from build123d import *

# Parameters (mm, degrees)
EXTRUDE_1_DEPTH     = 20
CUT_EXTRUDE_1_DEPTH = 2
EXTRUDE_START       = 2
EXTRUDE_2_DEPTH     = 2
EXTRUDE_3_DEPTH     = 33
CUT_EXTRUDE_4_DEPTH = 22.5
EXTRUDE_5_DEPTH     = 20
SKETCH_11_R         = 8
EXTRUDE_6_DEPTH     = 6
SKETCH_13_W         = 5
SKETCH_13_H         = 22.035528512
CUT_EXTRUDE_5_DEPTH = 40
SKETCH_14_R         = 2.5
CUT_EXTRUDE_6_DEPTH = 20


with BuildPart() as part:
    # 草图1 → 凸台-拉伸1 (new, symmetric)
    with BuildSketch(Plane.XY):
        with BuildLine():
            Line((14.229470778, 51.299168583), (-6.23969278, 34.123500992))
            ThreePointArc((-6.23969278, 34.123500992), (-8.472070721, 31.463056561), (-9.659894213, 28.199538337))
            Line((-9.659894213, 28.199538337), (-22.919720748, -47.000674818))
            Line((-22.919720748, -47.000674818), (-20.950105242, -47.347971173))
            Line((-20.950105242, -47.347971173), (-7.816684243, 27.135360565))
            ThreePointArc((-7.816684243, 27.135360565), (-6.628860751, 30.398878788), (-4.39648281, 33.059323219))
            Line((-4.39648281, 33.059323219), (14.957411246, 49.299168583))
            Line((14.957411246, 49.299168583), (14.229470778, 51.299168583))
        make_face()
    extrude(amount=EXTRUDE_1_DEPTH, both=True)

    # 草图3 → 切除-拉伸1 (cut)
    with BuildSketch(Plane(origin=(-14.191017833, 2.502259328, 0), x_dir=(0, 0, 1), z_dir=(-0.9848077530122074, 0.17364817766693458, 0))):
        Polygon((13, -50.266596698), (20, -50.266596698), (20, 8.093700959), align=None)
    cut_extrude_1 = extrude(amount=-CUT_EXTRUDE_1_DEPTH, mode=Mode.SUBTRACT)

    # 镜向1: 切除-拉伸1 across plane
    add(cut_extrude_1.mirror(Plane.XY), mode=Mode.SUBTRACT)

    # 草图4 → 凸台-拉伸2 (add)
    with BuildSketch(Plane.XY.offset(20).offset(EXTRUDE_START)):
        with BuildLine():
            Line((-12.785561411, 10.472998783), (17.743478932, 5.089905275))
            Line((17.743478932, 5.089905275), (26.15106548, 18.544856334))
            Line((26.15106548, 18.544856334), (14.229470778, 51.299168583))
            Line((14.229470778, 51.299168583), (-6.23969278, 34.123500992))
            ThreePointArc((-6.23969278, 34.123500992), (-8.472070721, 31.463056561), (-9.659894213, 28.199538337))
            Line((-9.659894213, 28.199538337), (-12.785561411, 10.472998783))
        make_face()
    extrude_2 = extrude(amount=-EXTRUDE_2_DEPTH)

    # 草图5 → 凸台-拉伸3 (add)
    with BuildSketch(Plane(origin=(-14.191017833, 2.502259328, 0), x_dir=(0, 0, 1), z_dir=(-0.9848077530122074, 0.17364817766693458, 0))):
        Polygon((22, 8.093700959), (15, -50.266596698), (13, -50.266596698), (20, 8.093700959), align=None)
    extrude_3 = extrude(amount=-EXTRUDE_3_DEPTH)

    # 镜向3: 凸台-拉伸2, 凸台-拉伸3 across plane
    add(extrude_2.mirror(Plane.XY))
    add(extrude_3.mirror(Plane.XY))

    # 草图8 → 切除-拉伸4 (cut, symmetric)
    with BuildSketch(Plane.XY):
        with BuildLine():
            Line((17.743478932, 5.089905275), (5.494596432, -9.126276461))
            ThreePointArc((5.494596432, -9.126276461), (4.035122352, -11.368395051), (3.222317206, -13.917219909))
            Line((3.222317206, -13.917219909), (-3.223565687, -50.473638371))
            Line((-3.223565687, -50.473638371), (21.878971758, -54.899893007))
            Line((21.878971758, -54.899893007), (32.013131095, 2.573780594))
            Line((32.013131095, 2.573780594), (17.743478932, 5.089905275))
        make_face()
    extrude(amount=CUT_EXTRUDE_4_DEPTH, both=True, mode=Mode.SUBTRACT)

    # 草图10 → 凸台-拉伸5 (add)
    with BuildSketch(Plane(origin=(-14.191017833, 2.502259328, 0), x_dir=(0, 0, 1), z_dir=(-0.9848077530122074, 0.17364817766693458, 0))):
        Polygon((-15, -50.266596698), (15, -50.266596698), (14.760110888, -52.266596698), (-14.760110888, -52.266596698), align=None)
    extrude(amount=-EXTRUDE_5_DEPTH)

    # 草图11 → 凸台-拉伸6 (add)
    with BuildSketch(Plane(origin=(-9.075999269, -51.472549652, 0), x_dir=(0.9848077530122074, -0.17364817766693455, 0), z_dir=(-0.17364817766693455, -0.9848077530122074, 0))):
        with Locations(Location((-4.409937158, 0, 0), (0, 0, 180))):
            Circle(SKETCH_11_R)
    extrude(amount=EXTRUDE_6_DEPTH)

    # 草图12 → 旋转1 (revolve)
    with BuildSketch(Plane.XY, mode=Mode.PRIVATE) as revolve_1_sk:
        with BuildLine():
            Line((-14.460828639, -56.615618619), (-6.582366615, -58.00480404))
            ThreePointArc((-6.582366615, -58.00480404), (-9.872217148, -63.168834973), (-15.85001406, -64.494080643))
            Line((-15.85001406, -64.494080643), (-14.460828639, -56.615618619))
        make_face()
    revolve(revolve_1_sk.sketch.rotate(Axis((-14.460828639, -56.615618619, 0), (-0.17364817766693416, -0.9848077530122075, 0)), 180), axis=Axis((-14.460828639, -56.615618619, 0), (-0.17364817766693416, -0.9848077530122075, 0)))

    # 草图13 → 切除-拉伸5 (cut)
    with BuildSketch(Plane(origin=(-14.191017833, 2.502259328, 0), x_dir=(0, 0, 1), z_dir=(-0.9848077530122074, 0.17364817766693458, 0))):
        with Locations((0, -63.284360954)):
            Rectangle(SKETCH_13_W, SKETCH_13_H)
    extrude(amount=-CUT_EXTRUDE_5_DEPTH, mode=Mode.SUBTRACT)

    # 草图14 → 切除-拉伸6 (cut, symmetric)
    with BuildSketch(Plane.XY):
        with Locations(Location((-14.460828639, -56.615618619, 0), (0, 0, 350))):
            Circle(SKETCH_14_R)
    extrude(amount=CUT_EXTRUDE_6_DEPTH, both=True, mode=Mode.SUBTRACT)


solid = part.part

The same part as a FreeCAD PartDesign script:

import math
import FreeCAD as App
import Part
import Sketcher
Q = App.Units.Quantity


def add_polygon(sketch, points):
    """Adds a closed chain of lines whose ends are joined by coincident constraints."""
    first, n = sketch.GeometryCount, len(points)
    for a, b in zip(points, points[1:] + points[:1]):
        sketch.addGeometry(Part.LineSegment(App.Vector(*a, 0), App.Vector(*b, 0)), False)
    for i in range(n):
        sketch.addConstraint(Sketcher.Constraint("Coincident", first + i, 2, first + (i + 1) % n, 1))

doc = App.newDocument("Part")
body = doc.addObject("PartDesign::Body", "Body")

# Sketch on XY plane
sketch1 = body.newObject("Sketcher::SketchObject", "Sketch")
sketch1.AttachmentSupport = (doc.getObject("XY_Plane"), [""])
sketch1.MapMode = "FlatFace"
sketch1.addGeometry([
    Part.LineSegment(App.Vector(14.2, 51.3, 0), App.Vector(-6.2, 34.1, 0)),  # 0
    Part.ArcOfCircle(Part.Circle(App.Vector(0.2, 26.5, 0), App.Vector(0, 0, 1), 10), math.radians(130), math.radians(170)),  # 1
    Part.LineSegment(App.Vector(-9.7, 28.2, 0), App.Vector(-22.9, -47, 0)),  # 2
    Part.LineSegment(App.Vector(-22.9, -47, 0), App.Vector(-21, -47.3, 0)),  # 3
    Part.LineSegment(App.Vector(-21, -47.3, 0), App.Vector(-7.8, 27.1, 0)),  # 4
    Part.ArcOfCircle(Part.Circle(App.Vector(2, 25.4, 0), App.Vector(0, 0, 1), 10), math.radians(130), math.radians(170)),  # 5
    Part.LineSegment(App.Vector(-4.4, 33.1, 0), App.Vector(15, 49.3, 0)),  # 6
    Part.LineSegment(App.Vector(15, 49.3, 0), App.Vector(14.2, 51.3, 0)),  # 7
], False)
sketch1.addConstraint([
    Sketcher.Constraint("Tangent", 0, 2, 1, 1),
    Sketcher.Constraint("Tangent", 1, 2, 2, 1),
    Sketcher.Constraint("Coincident", 2, 2, 3, 1),
    Sketcher.Constraint("Coincident", 3, 2, 4, 1),
    Sketcher.Constraint("Tangent", 4, 2, 5, 2),
    Sketcher.Constraint("Tangent", 5, 1, 6, 1),
    Sketcher.Constraint("Coincident", 6, 2, 7, 1),
    Sketcher.Constraint("Coincident", 7, 2, 0, 1),
    Sketcher.Constraint("Equal", 1, 5),
    Sketcher.Constraint("Perpendicular", 2, 3),
    Sketcher.Constraint("Perpendicular", 3, 4),
    Sketcher.Constraint("Parallel", 0, 6),
    Sketcher.Constraint("Radius", 1, Q("10 mm")),
    Sketcher.Constraint("Angle", 0, Q("-140 deg")),
    Sketcher.Constraint("Angle", 2, Q("-100 deg")),
    Sketcher.Constraint("Angle", 7, Q("110 deg")),
    Sketcher.Constraint("Distance", 3, Q("2 mm")),
    Sketcher.Constraint("DistanceY", 6, 2, 7, 2, Q("2 mm")),
    Sketcher.Constraint("DistanceY", -1, 1, 0, 2, Q("34.123501 mm")),
    Sketcher.Constraint("DistanceX", 3, 2, 5, 3, Q("22.981499 mm")),
    Sketcher.Constraint("DistanceX", 2, 2, -1, 1, Q("22.919721 mm")),
    Sketcher.Constraint("DistanceX", -1, 1, 6, 2, Q("14.957411 mm")),
])
pad1 = body.newObject("PartDesign::Pad", "Pad")
pad1.Profile = sketch1
pad1.Length = 40
pad1.Midplane = True

# Sketch on an angled plane
sketch2 = body.newObject("Sketcher::SketchObject", "Sketch001")
sketch2.Placement = App.Placement(App.Vector(-14.191018, 2.502259, 0), App.Rotation(App.Vector(0, 0, 1), App.Vector(0.173648178, 0.984807753, 0), App.Vector(-0.984807753, 0.173648178, 0), "ZXY"))
add_polygon(sketch2, [(13, -50), (20, -50), (20, 8)])  # lines 0-2
sketch2.addConstraint([
    Sketcher.Constraint("Horizontal", 0),
    Sketcher.Constraint("Vertical", 1),
    Sketcher.Constraint("DistanceX", 0, 1, 0, 2, Q("7 mm")),
    Sketcher.Constraint("DistanceX", -1, 1, 0, 2, Q("20 mm")),
    Sketcher.Constraint("DistanceY", -1, 1, 1, 2, Q("8.093701 mm")),
    Sketcher.Constraint("DistanceY", 1, 1, 1, 2, Q("58.360298 mm")),
])
pocket1 = body.newObject("PartDesign::Pocket", "Pocket")
pocket1.Profile = sketch2
pocket1.Length = 2
doc.recompute()

mirrored = body.newObject("PartDesign::Mirrored", "Mirrored")
mirrored.Originals = [pocket1]
mirrored.MirrorPlane = (doc.getObject("XY_Plane"), [""])
body.Tip = mirrored

# Sketch on XY plane
sketch3 = body.newObject("Sketcher::SketchObject", "Sketch002")
sketch3.AttachmentSupport = (doc.getObject("XY_Plane"), [""])
sketch3.MapMode = "FlatFace"
sketch3.AttachmentOffset = App.Placement(App.Vector(0, 0, 22), App.Rotation())
sketch3.addGeometry([
    Part.LineSegment(App.Vector(-13, 10, 0), App.Vector(18, 5, 0)),  # 0
    Part.LineSegment(App.Vector(18, 5, 0), App.Vector(26, 19, 0)),  # 1
    Part.LineSegment(App.Vector(26, 19, 0), App.Vector(14, 51, 0)),  # 2
    Part.LineSegment(App.Vector(14, 51, 0), App.Vector(-6, 34, 0)),  # 3
    Part.ArcOfCircle(Part.Circle(App.Vector(0, 26, 0), App.Vector(0, 0, 1), 10), math.radians(130), math.radians(170)),  # 4
    Part.LineSegment(App.Vector(-10, 28, 0), App.Vector(-13, 10, 0)),  # 5
], False)
sketch3.addConstraint([
    Sketcher.Constraint("Coincident", 0, 2, 1, 1),
    Sketcher.Constraint("Coincident", 1, 2, 2, 1),
    Sketcher.Constraint("Coincident", 2, 2, 3, 1),
    Sketcher.Constraint("Tangent", 3, 2, 4, 1),
    Sketcher.Constraint("Tangent", 4, 2, 5, 1),
    Sketcher.Constraint("Coincident", 5, 2, 0, 1),
    Sketcher.Constraint("Perpendicular", 0, 5),
    Sketcher.Constraint("Radius", 4, Q("10 mm")),
    Sketcher.Constraint("Angle", 0, Q("-10 deg")),
    Sketcher.Constraint("Angle", 1, Q("58 deg")),
    Sketcher.Constraint("Angle", 2, Q("110 deg")),
    Sketcher.Constraint("Angle", 3, Q("-140 deg")),
    Sketcher.Constraint("Distance", 0, Q("31 mm")),
    Sketcher.Constraint("Distance", 5, Q("18 mm")),
    Sketcher.Constraint("DistanceY", -1, 1, 5, 2, Q("10.472999 mm")),
    Sketcher.Constraint("DistanceY", 1, 2, 4, 3, Q("7.9182 mm")),
    Sketcher.Constraint("DistanceX", -1, 1, 0, 2, Q("17.743479 mm")),
])
pad2 = body.newObject("PartDesign::Pad", "Pad001")
pad2.Profile = sketch3
pad2.Length = 2
pad2.Reversed = True

# Sketch on an angled plane
sketch4 = body.newObject("Sketcher::SketchObject", "Sketch003")
sketch4.Placement = App.Placement(App.Vector(-14.191018, 2.502259, 0), App.Rotation(App.Vector(0, 0, 1), App.Vector(0.173648178, 0.984807753, 0), App.Vector(-0.984807753, 0.173648178, 0), "ZXY"))
add_polygon(sketch4, [(15, -50.3), (22, 8.1), (20, 8.1), (13, -50.3)])  # lines 0-3
sketch4.addConstraint([
    Sketcher.Constraint("Horizontal", 1),
    Sketcher.Constraint("Horizontal", 3),
    Sketcher.Constraint("Parallel", 0, 2),
    Sketcher.Constraint("DistanceX", 1, 2, 1, 1, Q("2 mm")),
    Sketcher.Constraint("DistanceX", -1, 1, 0, 2, Q("22 mm")),
    Sketcher.Constraint("DistanceX", -1, 1, 2, 2, Q("13 mm")),
    Sketcher.Constraint("DistanceY", -1, 1, 0, 2, Q("8.093701 mm")),
    Sketcher.Constraint("Distance", 0, Q("58.778604 mm")),
])
pad3 = body.newObject("PartDesign::Pad", "Pad002")
pad3.Profile = sketch4
pad3.Length = 33
pad3.Reversed = True
doc.recompute()

mirrored2 = body.newObject("PartDesign::Mirrored", "Mirrored001")
mirrored2.Originals = [pad2, pad3]
mirrored2.MirrorPlane = (doc.getObject("XY_Plane"), [""])
body.Tip = mirrored2

# Sketch on XY plane
sketch5 = body.newObject("Sketcher::SketchObject", "Sketch004")
sketch5.AttachmentSupport = (doc.getObject("XY_Plane"), [""])
sketch5.MapMode = "FlatFace"
sketch5.addGeometry([
    Part.LineSegment(App.Vector(18, 5, 0), App.Vector(5, -9, 0)),  # 0
    Part.ArcOfCircle(Part.Circle(App.Vector(13, -16, 0), App.Vector(0, 0, 1), 10), math.radians(139), math.radians(170)),  # 1
    Part.LineSegment(App.Vector(3, -14, 0), App.Vector(-3, -50, 0)),  # 2
    Part.LineSegment(App.Vector(-3, -50, 0), App.Vector(22, -55, 0)),  # 3
    Part.LineSegment(App.Vector(22, -55, 0), App.Vector(32, 3, 0)),  # 4
    Part.LineSegment(App.Vector(32, 3, 0), App.Vector(18, 5, 0)),  # 5
], False)
sketch5.addConstraint([
    Sketcher.Constraint("Tangent", 0, 2, 1, 1),
    Sketcher.Constraint("Tangent", 1, 2, 2, 1),
    Sketcher.Constraint("Coincident", 2, 2, 3, 1),
    Sketcher.Constraint("Coincident", 3, 2, 4, 1),
    Sketcher.Constraint("Coincident", 4, 2, 5, 1),
    Sketcher.Constraint("Coincident", 5, 2, 0, 1),
    Sketcher.Constraint("Perpendicular", 2, 3),
    Sketcher.Constraint("Perpendicular", 3, 4),
    Sketcher.Constraint("Perpendicular", 4, 5),
    Sketcher.Constraint("Radius", 1, Q("10 mm")),
    Sketcher.Constraint("Angle", 2, Q("-100 deg")),
    Sketcher.Constraint("DistanceY", 1, 2, 4, 2, Q("16.491001 mm")),
    Sketcher.Constraint("DistanceY", 1, 3, -1, 1, Q("15.653702 mm")),
    Sketcher.Constraint("DistanceX", 0, 2, 1, 3, Q("7.575798 mm")),
    Sketcher.Constraint("Distance", 0, Q("18.765259 mm")),
    Sketcher.Constraint("Distance", 2, Q("37.12036 mm")),
    Sketcher.Constraint("DistanceX", -1, 1, 3, 2, Q("21.878972 mm")),
])
pocket2 = body.newObject("PartDesign::Pocket", "Pocket001")
pocket2.Profile = sketch5
pocket2.Length = 45
pocket2.Midplane = True

# Sketch on an angled plane
sketch6 = body.newObject("Sketcher::SketchObject", "Sketch005")
sketch6.Placement = App.Placement(App.Vector(-14.191018, 2.502259, 0), App.Rotation(App.Vector(0, 0, 1), App.Vector(0.173648178, 0.984807753, 0), App.Vector(-0.984807753, 0.173648178, 0), "ZXY"))
add_polygon(sketch6, [(15, -50.3), (-15, -50.3), (-14.8, -52.3), (14.8, -52.3)])  # lines 0-3
sketch6.addConstraint([
    Sketcher.Constraint("Horizontal", 0),
    Sketcher.Constraint("Horizontal", 2),
    Sketcher.Constraint("Equal", 1, 3),
    Sketcher.Constraint("DistanceX", 0, 2, 0, 1, Q("30 mm")),
    Sketcher.Constraint("DistanceX", 0, 2, -1, 1, Q("15 mm")),
    Sketcher.Constraint("DistanceY", 1, 2, 0, 2, Q("2 mm")),
    Sketcher.Constraint("DistanceX", 2, 1, 2, 2, Q("29.520222 mm")),
    Sketcher.Constraint("DistanceY", 0, 2, -1, 1, Q("50.266597 mm")),
])
pad4 = body.newObject("PartDesign::Pad", "Pad003")
pad4.Profile = sketch6
pad4.Length = 20
pad4.Reversed = True

# Sketch on an angled plane
sketch7 = body.newObject("Sketcher::SketchObject", "Sketch006")
sketch7.Placement = App.Placement(App.Vector(-9.075999, -51.47255, 0), App.Rotation(App.Vector(0.984807753, -0.173648178, 0), App.Vector(0, 0, 1), App.Vector(-0.173648178, -0.984807753, 0), "ZXY"))
sketch7.addGeometry(Part.Circle(App.Vector(-4, 0, 0), App.Vector(0, 0, 1), 8), False)
sketch7.addConstraint([
    Sketcher.Constraint("PointOnObject", 0, 3, -1),
    Sketcher.Constraint("Diameter", 0, Q("16 mm")),
    Sketcher.Constraint("DistanceX", 0, 3, -1, 1, Q("4.409937 mm")),
])
pad5 = body.newObject("PartDesign::Pad", "Pad004")
pad5.Profile = sketch7
pad5.Length = 6

# Sketch on XY plane
sketch8 = body.newObject("Sketcher::SketchObject", "Sketch007")
sketch8.AttachmentSupport = (doc.getObject("XY_Plane"), [""])
sketch8.MapMode = "FlatFace"
sketch8.addGeometry([
    Part.LineSegment(App.Vector(-7, -58, 0), App.Vector(-14, -57, 0)),
    Part.LineSegment(App.Vector(-14, -57, 0), App.Vector(-16, -64, 0)),
    Part.ArcOfCircle(Part.Circle(App.Vector(-14, -57, 0), App.Vector(0, 0, 1), 8), math.radians(-100), math.radians(-10)),
], False)
sketch8.addGeometry(Part.LineSegment(App.Vector(-14, -57, 0), App.Vector(-16, -64, 0)), True)  # axis
sketch8.addConstraint([
    Sketcher.Constraint("Coincident", 0, 2, 1, 1),
    Sketcher.Constraint("Coincident", 1, 2, 2, 1),
    Sketcher.Constraint("Coincident", 2, 2, 0, 1),
    Sketcher.Constraint("Coincident", 0, 2, 2, 3),
    Sketcher.Constraint("Coincident", 3, 1, 2, 3),
    Sketcher.Constraint("Coincident", 3, 2, 1, 2),
    Sketcher.Constraint("Perpendicular", 0, 1),
    Sketcher.Constraint("Radius", 2, Q("8 mm")),
    Sketcher.Constraint("Angle", 0, Q("170 deg")),
    Sketcher.Constraint("DistanceX", 2, 3, -1, 1, Q("14.460829 mm")),
    Sketcher.Constraint("DistanceY", 2, 3, -1, 1, Q("56.615619 mm")),
])
revolution = body.newObject("PartDesign::Revolution", "Revolution")
revolution.Profile = sketch8
revolution.ReferenceAxis = (sketch8, ["Axis0"])
revolution.Angle = 360

# Sketch on an angled plane
sketch9 = body.newObject("Sketcher::SketchObject", "Sketch008")
sketch9.Placement = App.Placement(App.Vector(-14.191018, 2.502259, 0), App.Rotation(App.Vector(0, 0, 1), App.Vector(0.173648178, 0.984807753, 0), App.Vector(-0.984807753, 0.173648178, 0), "ZXY"))
add_polygon(sketch9, [(-2, -52), (-2, -74), (2, -74), (2, -52)])  # lines 0-3
sketch9.addConstraint([
    Sketcher.Constraint("Vertical", 0),
    Sketcher.Constraint("Horizontal", 1),
    Sketcher.Constraint("Vertical", 2),
    Sketcher.Constraint("Horizontal", 3),
    Sketcher.Constraint("DistanceX", 1, 1, 1, 2, Q("5 mm")),
    Sketcher.Constraint("DistanceX", 0, 2, -1, 1, Q("2.5 mm")),
    Sketcher.Constraint("DistanceY", 0, 2, 0, 1, Q("22.035529 mm")),
    Sketcher.Constraint("DistanceY", 0, 2, -1, 1, Q("74.302125 mm")),
])
pocket3 = body.newObject("PartDesign::Pocket", "Pocket002")
pocket3.Profile = sketch9
pocket3.Length = 40

# Sketch on XY plane
sketch10 = body.newObject("Sketcher::SketchObject", "Sketch009")
sketch10.AttachmentSupport = (doc.getObject("XY_Plane"), [""])
sketch10.MapMode = "FlatFace"
sketch10.addGeometry(Part.Circle(App.Vector(-14.5, -56.6, 0), App.Vector(0, 0, 1), 2.5), False)
sketch10.addConstraint([
    Sketcher.Constraint("Diameter", 0, Q("5 mm")),
    Sketcher.Constraint("DistanceX", 0, 3, -1, 1, Q("14.460829 mm")),
    Sketcher.Constraint("DistanceY", 0, 3, -1, 1, Q("56.615619 mm")),
])
pocket4 = body.newObject("PartDesign::Pocket", "Pocket003")
pocket4.Profile = sketch10
pocket4.Length = 40
pocket4.Midplane = True

doc.recompute()
